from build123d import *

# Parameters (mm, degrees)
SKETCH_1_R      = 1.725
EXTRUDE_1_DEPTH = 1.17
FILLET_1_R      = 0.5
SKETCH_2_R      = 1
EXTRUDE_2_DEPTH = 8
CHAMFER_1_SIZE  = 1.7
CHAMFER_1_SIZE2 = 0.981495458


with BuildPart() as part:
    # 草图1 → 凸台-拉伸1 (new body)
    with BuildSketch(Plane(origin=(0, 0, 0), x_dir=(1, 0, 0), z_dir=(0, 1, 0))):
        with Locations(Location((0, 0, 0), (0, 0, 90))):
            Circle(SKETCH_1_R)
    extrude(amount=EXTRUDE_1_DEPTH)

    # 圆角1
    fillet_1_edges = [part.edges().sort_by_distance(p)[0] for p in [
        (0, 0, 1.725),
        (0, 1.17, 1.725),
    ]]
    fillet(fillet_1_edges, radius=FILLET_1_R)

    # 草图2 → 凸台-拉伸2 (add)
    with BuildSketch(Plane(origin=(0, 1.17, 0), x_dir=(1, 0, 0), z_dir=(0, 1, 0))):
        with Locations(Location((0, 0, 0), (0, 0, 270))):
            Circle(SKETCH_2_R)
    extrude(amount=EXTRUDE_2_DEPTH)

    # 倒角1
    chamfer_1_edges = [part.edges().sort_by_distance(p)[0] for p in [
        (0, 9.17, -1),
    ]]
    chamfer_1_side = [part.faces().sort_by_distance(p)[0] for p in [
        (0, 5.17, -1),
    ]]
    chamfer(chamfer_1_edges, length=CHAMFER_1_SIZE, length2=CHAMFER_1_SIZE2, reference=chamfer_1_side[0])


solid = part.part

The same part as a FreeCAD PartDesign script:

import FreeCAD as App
import Part
import Sketcher
from FreeCAD import Vector


def edges_at(feature, points):
    """Names of the edges that pass closest to the given points."""
    edges = feature.Shape.Edges
    near = lambda p: min(range(len(edges)), key=lambda i: edges[i].distToShape(Part.Vertex(*p))[0])
    return sorted({f"Edge{near(p) + 1}" for p in points})

doc = App.newDocument("Part")
body = doc.addObject("PartDesign::Body", "Body")

# Sketch on XZ plane
sketch1 = body.newObject("Sketcher::SketchObject", "Sketch")
sketch1.AttachmentSupport = (doc.getObject("XZ_Plane"), [""])
sketch1.MapMode = "FlatFace"
sketch1.addGeometry(Part.Circle(Vector(0, 0, 0), Vector(0, 0, 1), 1.7), False)
sketch1.addConstraint([
    Sketcher.Constraint("Coincident", 0, 3, -1, 1),
    Sketcher.Constraint("Diameter", 0, 3.45),
])
pad1 = body.newObject("PartDesign::Pad", "Pad")
pad1.Profile = sketch1
pad1.Length = 1.17
pad1.Reversed = True
doc.recompute()

fillet = body.newObject("PartDesign::Fillet", "Fillet")
fillet.Base = (pad1, edges_at(pad1, [(0, 0, 1.725), (0, 1.17, 1.725)]))
fillet.Radius = 0.5

# Sketch on XZ plane
sketch2 = body.newObject("Sketcher::SketchObject", "Sketch001")
sketch2.AttachmentSupport = (doc.getObject("XZ_Plane"), [""])
sketch2.MapMode = "FlatFace"
sketch2.AttachmentOffset = App.Placement(Vector(0, 0, -1.17), App.Rotation())
sketch2.addGeometry(Part.Circle(Vector(0, 0, 0), Vector(0, 0, 1), 1), False)
sketch2.addConstraint([
    Sketcher.Constraint("Coincident", 0, 3, -1, 1),
    Sketcher.Constraint("Diameter", 0, 2.0),
])
pad2 = body.newObject("PartDesign::Pad", "Pad001")
pad2.Profile = sketch2
pad2.Length = 8
pad2.Reversed = True
doc.recompute()

chamfer = body.newObject("PartDesign::Chamfer", "Chamfer")
chamfer.Base = (pad2, edges_at(pad2, [(0, 9.17, -1)]))
chamfer.ChamferType = "Two distances"
chamfer.Size = 1.7
chamfer.Size2 = 0.981495

doc.recompute()
